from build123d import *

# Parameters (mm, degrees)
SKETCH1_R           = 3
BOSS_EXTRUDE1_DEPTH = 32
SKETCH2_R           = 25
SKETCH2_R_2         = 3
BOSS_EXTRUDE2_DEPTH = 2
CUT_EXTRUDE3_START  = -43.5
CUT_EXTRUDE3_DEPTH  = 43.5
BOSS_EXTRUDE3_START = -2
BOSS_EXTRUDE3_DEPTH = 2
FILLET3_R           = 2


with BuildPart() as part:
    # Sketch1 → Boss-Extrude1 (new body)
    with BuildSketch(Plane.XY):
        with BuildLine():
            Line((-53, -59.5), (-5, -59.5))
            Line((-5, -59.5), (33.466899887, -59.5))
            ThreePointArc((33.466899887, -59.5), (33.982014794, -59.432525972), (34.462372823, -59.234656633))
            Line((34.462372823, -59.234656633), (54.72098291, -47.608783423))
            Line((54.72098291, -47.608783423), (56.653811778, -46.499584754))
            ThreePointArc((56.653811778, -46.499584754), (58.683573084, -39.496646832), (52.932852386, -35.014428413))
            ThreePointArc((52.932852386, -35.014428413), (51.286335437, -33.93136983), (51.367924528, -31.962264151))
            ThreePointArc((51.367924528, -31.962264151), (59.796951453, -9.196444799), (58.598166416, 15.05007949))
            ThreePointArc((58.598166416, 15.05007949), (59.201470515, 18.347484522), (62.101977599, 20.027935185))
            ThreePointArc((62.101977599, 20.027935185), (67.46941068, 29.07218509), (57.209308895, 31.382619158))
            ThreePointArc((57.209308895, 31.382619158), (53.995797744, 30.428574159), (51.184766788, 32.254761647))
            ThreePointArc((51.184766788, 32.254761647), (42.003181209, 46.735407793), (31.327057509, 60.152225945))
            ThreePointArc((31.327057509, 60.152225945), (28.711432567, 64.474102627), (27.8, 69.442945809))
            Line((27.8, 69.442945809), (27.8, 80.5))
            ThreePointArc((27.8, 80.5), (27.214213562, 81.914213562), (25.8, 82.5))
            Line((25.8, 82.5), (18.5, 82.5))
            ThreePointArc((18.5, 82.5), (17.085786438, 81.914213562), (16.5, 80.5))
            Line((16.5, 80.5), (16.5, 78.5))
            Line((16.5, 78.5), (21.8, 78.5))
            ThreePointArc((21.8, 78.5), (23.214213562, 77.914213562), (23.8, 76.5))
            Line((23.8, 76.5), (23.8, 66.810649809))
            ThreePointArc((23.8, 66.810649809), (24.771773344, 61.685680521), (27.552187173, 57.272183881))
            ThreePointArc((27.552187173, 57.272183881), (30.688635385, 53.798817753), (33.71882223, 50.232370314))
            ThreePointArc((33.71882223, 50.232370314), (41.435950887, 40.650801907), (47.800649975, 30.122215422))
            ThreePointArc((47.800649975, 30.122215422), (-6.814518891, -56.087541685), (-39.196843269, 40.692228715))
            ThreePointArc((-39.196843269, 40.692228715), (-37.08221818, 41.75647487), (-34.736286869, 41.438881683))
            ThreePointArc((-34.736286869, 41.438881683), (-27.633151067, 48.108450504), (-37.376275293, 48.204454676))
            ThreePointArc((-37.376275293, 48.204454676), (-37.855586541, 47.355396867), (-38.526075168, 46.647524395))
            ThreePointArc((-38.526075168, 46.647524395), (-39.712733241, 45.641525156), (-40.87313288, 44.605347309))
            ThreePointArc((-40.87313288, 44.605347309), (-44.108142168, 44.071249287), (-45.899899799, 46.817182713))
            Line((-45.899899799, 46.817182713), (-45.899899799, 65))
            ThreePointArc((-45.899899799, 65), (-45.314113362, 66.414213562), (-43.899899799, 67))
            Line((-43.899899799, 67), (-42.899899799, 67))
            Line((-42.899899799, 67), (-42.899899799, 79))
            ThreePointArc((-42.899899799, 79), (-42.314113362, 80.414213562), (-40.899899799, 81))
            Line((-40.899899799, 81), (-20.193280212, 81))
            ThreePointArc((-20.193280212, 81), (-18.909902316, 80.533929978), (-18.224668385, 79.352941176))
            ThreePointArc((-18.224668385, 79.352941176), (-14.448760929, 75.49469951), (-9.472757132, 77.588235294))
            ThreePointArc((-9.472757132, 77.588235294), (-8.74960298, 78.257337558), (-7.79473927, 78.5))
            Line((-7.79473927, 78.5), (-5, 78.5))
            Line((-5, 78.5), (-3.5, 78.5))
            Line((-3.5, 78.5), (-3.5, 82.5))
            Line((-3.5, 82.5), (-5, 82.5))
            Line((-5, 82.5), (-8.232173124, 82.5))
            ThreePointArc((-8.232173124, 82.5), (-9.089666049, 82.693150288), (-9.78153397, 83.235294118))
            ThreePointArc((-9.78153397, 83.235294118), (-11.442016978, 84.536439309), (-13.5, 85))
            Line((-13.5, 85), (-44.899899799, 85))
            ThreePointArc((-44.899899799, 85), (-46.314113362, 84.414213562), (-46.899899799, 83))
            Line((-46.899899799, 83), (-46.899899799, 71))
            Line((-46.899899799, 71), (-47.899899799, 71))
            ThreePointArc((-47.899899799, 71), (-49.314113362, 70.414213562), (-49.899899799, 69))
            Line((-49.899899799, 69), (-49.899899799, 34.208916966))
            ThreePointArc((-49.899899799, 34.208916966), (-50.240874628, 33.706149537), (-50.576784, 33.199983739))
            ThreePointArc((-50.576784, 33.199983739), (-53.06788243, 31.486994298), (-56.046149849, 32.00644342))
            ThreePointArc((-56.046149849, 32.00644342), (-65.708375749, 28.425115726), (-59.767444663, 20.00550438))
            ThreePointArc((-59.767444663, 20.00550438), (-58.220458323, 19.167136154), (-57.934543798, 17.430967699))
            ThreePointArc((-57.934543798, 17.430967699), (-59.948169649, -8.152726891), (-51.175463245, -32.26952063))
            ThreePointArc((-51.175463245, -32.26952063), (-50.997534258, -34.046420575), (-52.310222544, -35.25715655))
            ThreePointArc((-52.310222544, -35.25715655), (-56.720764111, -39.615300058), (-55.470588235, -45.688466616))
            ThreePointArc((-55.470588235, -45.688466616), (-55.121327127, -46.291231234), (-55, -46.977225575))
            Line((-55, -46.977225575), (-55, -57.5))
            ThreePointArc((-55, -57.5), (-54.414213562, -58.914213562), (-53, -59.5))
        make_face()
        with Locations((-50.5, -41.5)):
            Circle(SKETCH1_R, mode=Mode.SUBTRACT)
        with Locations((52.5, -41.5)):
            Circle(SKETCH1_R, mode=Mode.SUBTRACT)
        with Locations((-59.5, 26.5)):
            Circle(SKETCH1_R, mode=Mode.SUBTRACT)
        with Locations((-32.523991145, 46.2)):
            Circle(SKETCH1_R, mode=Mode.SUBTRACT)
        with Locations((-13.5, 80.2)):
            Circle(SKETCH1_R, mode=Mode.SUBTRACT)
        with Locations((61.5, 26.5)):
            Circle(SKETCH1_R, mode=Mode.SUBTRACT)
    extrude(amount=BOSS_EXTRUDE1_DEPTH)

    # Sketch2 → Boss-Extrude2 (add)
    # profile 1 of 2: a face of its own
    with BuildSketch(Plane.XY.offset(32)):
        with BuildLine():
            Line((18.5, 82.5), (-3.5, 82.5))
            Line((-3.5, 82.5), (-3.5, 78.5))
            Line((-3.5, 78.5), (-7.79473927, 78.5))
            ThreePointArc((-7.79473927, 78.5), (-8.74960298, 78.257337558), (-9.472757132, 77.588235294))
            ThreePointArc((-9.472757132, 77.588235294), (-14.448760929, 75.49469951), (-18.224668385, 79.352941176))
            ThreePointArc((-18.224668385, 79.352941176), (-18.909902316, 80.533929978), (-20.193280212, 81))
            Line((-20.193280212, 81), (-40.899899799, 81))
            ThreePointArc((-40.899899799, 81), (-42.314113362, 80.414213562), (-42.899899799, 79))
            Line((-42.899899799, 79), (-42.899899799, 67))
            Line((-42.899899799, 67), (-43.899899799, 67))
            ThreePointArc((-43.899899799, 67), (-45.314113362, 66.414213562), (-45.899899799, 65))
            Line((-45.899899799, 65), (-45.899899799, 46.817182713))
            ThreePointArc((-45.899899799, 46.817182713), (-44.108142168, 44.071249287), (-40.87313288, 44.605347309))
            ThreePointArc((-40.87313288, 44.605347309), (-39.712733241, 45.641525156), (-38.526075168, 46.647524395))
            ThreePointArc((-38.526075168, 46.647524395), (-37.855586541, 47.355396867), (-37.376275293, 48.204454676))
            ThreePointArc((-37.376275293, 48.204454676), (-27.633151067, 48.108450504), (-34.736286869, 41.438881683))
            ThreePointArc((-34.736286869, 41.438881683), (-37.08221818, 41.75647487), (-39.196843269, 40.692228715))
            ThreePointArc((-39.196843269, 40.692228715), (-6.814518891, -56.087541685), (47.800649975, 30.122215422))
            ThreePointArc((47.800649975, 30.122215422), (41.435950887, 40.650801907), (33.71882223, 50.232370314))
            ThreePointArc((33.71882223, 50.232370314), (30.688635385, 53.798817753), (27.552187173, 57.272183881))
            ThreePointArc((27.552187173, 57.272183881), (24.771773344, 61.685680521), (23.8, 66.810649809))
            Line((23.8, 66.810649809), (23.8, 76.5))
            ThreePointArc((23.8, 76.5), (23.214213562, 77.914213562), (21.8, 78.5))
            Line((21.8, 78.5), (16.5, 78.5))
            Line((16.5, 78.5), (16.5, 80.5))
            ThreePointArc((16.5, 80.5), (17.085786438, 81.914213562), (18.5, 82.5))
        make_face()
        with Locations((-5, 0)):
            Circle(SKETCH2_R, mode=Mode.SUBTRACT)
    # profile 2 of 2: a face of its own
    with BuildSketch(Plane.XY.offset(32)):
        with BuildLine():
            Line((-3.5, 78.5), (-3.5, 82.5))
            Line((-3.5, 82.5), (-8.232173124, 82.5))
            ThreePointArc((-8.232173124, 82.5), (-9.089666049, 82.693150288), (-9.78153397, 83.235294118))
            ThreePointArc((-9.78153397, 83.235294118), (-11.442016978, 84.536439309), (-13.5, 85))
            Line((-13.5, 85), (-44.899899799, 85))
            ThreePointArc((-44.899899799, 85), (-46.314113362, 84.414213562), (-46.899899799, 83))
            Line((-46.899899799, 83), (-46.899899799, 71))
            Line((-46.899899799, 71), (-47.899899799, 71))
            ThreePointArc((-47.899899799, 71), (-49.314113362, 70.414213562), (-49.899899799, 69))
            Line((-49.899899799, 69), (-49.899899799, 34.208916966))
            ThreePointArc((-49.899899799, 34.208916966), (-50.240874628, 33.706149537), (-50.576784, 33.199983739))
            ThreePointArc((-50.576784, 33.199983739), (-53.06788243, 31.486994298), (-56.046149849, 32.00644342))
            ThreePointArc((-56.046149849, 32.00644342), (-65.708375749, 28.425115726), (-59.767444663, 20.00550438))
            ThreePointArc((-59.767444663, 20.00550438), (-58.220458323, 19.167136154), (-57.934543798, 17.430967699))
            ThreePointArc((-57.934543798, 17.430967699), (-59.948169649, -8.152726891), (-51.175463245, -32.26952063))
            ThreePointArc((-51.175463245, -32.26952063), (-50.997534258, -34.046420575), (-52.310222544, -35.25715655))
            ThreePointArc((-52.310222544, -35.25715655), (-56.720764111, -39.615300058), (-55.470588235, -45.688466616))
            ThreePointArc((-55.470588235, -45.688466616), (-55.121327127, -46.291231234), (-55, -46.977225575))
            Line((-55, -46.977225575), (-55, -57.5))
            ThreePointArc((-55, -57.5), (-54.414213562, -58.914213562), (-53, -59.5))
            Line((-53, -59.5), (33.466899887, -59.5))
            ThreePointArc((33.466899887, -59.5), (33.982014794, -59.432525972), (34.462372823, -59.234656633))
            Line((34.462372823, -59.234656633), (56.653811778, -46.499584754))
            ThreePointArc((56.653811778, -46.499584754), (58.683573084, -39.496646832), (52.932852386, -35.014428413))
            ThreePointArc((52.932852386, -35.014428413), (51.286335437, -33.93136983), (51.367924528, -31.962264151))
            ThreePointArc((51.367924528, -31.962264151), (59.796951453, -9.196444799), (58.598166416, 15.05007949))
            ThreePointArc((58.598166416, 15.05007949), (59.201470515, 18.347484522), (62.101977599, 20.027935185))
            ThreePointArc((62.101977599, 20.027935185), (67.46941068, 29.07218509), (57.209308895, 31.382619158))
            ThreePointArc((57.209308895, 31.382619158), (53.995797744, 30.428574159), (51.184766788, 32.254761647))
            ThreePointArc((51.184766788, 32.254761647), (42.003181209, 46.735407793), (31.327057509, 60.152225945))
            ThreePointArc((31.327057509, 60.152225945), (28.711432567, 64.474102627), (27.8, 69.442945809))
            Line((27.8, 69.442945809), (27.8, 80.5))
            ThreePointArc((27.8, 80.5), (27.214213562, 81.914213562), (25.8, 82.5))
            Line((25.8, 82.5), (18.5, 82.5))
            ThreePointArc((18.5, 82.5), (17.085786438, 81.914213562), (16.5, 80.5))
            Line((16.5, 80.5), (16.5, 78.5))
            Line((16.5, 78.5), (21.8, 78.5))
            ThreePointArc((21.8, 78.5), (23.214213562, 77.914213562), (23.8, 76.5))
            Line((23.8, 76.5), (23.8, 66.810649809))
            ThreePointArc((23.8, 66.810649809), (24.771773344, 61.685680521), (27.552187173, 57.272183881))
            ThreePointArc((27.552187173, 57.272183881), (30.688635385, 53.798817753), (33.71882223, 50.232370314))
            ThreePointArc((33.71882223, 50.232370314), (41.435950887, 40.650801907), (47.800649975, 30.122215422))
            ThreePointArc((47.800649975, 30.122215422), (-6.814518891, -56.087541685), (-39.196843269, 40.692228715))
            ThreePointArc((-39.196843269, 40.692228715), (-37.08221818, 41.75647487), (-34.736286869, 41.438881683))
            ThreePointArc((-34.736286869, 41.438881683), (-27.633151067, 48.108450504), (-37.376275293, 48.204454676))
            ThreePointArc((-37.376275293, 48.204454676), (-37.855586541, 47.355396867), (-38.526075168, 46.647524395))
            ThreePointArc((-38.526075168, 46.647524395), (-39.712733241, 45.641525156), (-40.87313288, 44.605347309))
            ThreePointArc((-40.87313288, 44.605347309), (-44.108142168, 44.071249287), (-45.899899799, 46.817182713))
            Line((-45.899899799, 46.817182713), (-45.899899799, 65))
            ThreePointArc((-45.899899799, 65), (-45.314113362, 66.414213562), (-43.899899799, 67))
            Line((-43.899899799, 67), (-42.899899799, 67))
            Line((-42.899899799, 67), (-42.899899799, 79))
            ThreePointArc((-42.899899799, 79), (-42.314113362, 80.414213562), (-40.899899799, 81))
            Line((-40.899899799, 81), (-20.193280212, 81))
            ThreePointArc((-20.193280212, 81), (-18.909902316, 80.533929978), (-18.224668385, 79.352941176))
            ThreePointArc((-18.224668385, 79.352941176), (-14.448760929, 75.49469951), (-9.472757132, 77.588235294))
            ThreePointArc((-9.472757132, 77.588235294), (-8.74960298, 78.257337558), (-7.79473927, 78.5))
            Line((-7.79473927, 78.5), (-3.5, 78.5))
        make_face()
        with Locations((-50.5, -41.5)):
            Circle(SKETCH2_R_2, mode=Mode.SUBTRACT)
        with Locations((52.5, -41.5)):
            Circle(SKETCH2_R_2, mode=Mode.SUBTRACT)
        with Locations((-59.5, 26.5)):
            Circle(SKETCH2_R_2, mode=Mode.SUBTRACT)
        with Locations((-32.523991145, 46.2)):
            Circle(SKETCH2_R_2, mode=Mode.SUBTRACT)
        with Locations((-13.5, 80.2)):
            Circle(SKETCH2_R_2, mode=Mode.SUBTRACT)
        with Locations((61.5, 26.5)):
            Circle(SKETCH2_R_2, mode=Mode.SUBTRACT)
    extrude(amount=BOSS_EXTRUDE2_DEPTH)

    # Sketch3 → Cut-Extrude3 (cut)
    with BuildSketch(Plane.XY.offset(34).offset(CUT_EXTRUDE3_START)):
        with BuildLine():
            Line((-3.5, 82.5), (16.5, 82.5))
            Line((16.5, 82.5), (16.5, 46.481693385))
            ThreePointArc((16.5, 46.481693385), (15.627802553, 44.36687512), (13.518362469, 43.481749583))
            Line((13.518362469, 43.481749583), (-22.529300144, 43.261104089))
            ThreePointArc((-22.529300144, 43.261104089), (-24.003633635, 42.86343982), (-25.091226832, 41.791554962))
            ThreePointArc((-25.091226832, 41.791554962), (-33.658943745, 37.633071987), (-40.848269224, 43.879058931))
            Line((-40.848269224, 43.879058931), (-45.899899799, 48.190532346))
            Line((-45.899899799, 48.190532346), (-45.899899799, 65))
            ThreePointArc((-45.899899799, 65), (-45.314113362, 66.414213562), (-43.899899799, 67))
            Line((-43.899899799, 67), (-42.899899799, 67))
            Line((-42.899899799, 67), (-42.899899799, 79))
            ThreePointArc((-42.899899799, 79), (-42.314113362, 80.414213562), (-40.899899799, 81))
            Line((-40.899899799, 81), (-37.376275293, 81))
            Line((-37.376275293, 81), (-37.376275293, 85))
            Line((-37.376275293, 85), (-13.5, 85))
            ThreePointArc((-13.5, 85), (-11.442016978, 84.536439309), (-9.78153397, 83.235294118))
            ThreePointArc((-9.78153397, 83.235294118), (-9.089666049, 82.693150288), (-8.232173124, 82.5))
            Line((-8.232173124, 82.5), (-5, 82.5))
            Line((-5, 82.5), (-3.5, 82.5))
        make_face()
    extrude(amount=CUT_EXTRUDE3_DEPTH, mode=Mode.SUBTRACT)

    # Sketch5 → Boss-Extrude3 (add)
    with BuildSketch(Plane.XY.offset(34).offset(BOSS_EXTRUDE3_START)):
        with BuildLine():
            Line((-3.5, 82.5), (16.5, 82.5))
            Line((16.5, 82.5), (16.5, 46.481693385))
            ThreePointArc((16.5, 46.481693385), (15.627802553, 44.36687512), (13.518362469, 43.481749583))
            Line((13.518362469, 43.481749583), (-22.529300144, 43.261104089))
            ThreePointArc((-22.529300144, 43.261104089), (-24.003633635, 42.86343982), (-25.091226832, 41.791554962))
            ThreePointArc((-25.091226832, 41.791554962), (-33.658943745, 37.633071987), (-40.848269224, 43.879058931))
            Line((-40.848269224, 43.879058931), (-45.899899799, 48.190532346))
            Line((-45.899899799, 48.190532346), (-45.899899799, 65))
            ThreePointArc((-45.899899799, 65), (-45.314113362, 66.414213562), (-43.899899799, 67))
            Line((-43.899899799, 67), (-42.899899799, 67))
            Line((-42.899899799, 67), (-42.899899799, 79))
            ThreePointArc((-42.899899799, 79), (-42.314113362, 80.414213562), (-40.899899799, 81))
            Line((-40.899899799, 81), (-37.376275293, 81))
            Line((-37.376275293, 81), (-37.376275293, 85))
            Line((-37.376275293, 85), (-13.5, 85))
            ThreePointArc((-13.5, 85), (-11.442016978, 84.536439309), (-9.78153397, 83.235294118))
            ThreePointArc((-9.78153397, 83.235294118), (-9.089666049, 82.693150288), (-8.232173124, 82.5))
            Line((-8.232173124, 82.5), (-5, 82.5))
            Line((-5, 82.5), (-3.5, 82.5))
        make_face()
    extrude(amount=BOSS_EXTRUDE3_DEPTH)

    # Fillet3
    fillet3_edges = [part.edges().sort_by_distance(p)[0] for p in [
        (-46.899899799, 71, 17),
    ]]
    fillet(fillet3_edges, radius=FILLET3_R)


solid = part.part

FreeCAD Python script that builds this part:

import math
import FreeCAD as App
import Part
import Sketcher
from FreeCAD import Vector


def edges_at(feature, points):
    """Names of the edges that pass closest to the given points."""
    edges = feature.Shape.Edges
    near = lambda p: min(range(len(edges)), key=lambda i: edges[i].distToShape(Part.Vertex(*p))[0])
    return sorted({f"Edge{near(p) + 1}" for p in points})

doc = App.newDocument("Part")
params = doc.addObject("Spreadsheet::Sheet", "Params")
for row, (alias, value) in enumerate([
    ("sketch1_diameter", "6 mm"),
    ("sketch1_radius", "2 mm"),
    ("sketch1_radius2", "4 mm"),
    ("sketch1_radius3", "14 mm"),
    ("sketch1_radius4", "6.5 mm"),
    ("pad1_length", "32 mm"),
    ("sketch2_diameter", "50 mm"),
    ("sketch2_diameter2", "6 mm"),
    ("sketch2_radius", "2 mm"),
    ("sketch2_radius2", "4 mm"),
    ("sketch2_radius3", "14 mm"),
    ("pad2_length", "2 mm"),
    ("sketch3_radius", "2 mm"),
    ("sketch3_radius2", "3 mm"),
    ("sketch3_radius3", "4.8 mm"),
    ("sketch3_width", "1 mm"),
    ("sketch3_height", "4 mm"),
    ("pocket1_length", "43.5 mm"),
    ("sketch4_radius", "2 mm"),
    ("sketch4_radius2", "3 mm"),
    ("sketch4_radius3", "4.8 mm"),
    ("sketch4_width", "1 mm"),
    ("sketch4_height", "4 mm"),
    ("pad3_length", "2 mm"),
    ("fillet_radius", "2 mm"),
], start=1):
    params.set(f"A{row}", alias)
    params.set(f"B{row}", "=" + value)
    params.setAlias(f"B{row}", alias)

body = doc.addObject("PartDesign::Body", "Body")

# Sketch on XY plane
sketch1 = doc.addObject("Sketcher::SketchObject", "Sketch")
body.addObject(sketch1)
sketch1.AttachmentSupport = (doc.XY_Plane, [""])
sketch1.MapMode = "FlatFace"
sketch1.addGeometry([
    Part.LineSegment(Vector(-53, -59.5, 0), Vector(33.5, -59.5, 0)),  # 0
    Part.ArcOfCircle(Part.Circle(Vector(33.5, -57.5, 0), Vector(0, 0, 1), 2), math.radians(-90), math.radians(-60)),  # 1
    Part.LineSegment(Vector(34.5, -59.2, 0), Vector(54.7, -47.6, 0)),  # 2
    Part.LineSegment(Vector(54.7, -47.6, 0), Vector(56.7, -46.5, 0)),  # 3
    Part.ArcOfCircle(Part.Circle(Vector(52.5, -41.5, 0), Vector(0, 0, 1), 6.5), math.radians(-50), math.radians(86)),  # 4
    Part.ArcOfCircle(Part.Circle(Vector(53.1, -33, 0), Vector(0, 0, 1), 2), math.radians(148), math.radians(266)),  # 5
    Part.ArcOfCircle(Part.Circle(Vector(0, 0, 0), Vector(0, 0, 1), 60.5), math.radians(-32), math.radians(14)),  # 6
    Part.ArcOfCircle(Part.Circle(Vector(62.5, 16, 0), Vector(0, 0, 1), 4), math.radians(95), math.radians(194)),  # 7
    Part.ArcOfCircle(Part.Circle(Vector(61.5, 26.5, 0), Vector(0, 0, 1), 6.5), math.radians(-85), math.radians(131)),  # 8
    Part.ArcOfCircle(Part.Circle(Vector(54.6, 34.4, 0), Vector(0, 0, 1), 4), math.radians(-148), math.radians(-49)),  # 9
    Part.ArcOfCircle(Part.Circle(Vector(-88.6, -46.2, 0), Vector(0, 0, 1), 160.3), math.radians(29.31), math.radians(41.58)),  # 10
    Part.ArcOfCircle(Part.Circle(Vector(41.8, 69.4, 0), Vector(0, 0, 1), 14), math.radians(180), math.radians(222)),  # 11
    Part.LineSegment(Vector(27.8, 69.4, 0), Vector(27.8, 80.5, 0)),  # 12
    Part.ArcOfCircle(Part.Circle(Vector(25.8, 80.5, 0), Vector(0, 0, 1), 2), math.radians(0), math.radians(90)),  # 13
    Part.LineSegment(Vector(25.8, 82.5, 0), Vector(18.5, 82.5, 0)),  # 14
    Part.ArcOfCircle(Part.Circle(Vector(18.5, 80.5, 0), Vector(0, 0, 1), 2), math.radians(90), math.radians(180)),  # 15
    Part.LineSegment(Vector(16.5, 80.5, 0), Vector(16.5, 78.5, 0)),  # 16
    Part.LineSegment(Vector(16.5, 78.5, 0), Vector(21.8, 78.5, 0)),  # 17
    Part.ArcOfCircle(Part.Circle(Vector(21.8, 76.5, 0), Vector(0, 0, 1), 2), math.radians(0), math.radians(90)),  # 18
    Part.LineSegment(Vector(23.8, 76.5, 0), Vector(23.8, 66.8, 0)),  # 19
    Part.ArcOfCircle(Part.Circle(Vector(37.8, 66.8, 0), Vector(0, 0, 1), 14), math.radians(180), math.radians(223)),  # 20
    Part.ArcOfCircle(Part.Circle(Vector(-85.9, -48.4, 0), Vector(0, 0, 1), 155), math.radians(39.49), math.radians(42.95)),  # 21
    Part.ArcOfCircle(Part.Circle(Vector(-33.7, -11.9, 0), Vector(0, 0, 1), 91.7), math.radians(27.31), math.radians(42.7)),  # 22
    Part.ArcOfCircle(Part.Circle(Vector(0, 0, 0), Vector(0, 0, 1), 56.5), math.radians(134), math.radians(392)),  # 23
    Part.ArcOfCircle(Part.Circle(Vector(-36.4, 37.8, 0), Vector(0, 0, 1), 4), math.radians(65), math.radians(134)),  # 24
    Part.ArcOfCircle(Part.Circle(Vector(-32.5, 46.2, 0), Vector(0, 0, 1), 5.2), math.radians(-115), math.radians(158)),  # 25
    Part.ArcOfCircle(Part.Circle(Vector(-41.1, 49.7, 0), Vector(0, 0, 1), 4), math.radians(-50), math.radians(-22)),  # 26
    Part.ArcOfCircle(Part.Circle(Vector(0, 0, 0), Vector(0, 0, 1), 60.5), math.radians(129.55), math.radians(132.5)),  # 27
    Part.ArcOfCircle(Part.Circle(Vector(-42.9, 46.8, 0), Vector(0, 0, 1), 3), math.radians(180), math.radians(312)),  # 28
    Part.LineSegment(Vector(-45.9, 46.8, 0), Vector(-45.9, 65, 0)),  # 29
    Part.ArcOfCircle(Part.Circle(Vector(-43.9, 65, 0), Vector(0, 0, 1), 2), math.radians(90), math.radians(180)),  # 30
    Part.LineSegment(Vector(-43.9, 67, 0), Vector(-42.9, 67, 0)),  # 31
    Part.LineSegment(Vector(-42.9, 67, 0), Vector(-42.9, 79, 0)),  # 32
    Part.ArcOfCircle(Part.Circle(Vector(-40.9, 79, 0), Vector(0, 0, 1), 2), math.radians(90), math.radians(180)),  # 33
    Part.LineSegment(Vector(-40.9, 81, 0), Vector(-20.2, 81, 0)),  # 34
    Part.ArcOfCircle(Part.Circle(Vector(-20.2, 79, 0), Vector(0, 0, 1), 2), math.radians(10), math.radians(90)),  # 35
    Part.ArcOfCircle(Part.Circle(Vector(-13.5, 80.2, 0), Vector(0, 0, 1), 4.8), math.radians(-170), math.radians(-33)),  # 36
    Part.ArcOfCircle(Part.Circle(Vector(-7.8, 76.5, 0), Vector(0, 0, 1), 2), math.radians(90), math.radians(147)),  # 37
    Part.LineSegment(Vector(-7.8, 78.5, 0), Vector(-3.5, 78.5, 0)),  # 38
    Part.LineSegment(Vector(-3.5, 78.5, 0), Vector(-3.5, 82.5, 0)),  # 39
    Part.LineSegment(Vector(-3.5, 82.5, 0), Vector(-8.2, 82.5, 0)),  # 40
    Part.ArcOfCircle(Part.Circle(Vector(-8.2, 84.5, 0), Vector(0, 0, 1), 2), math.radians(-141), math.radians(-90)),  # 41
    Part.ArcOfCircle(Part.Circle(Vector(-13.5, 80.2, 0), Vector(0, 0, 1), 4.8), math.radians(39), math.radians(90)),  # 42
    Part.LineSegment(Vector(-13.5, 85, 0), Vector(-44.9, 85, 0)),  # 43
    Part.ArcOfCircle(Part.Circle(Vector(-44.9, 83, 0), Vector(0, 0, 1), 2), math.radians(90), math.radians(180)),  # 44
    Part.LineSegment(Vector(-46.9, 83, 0), Vector(-46.9, 71, 0)),  # 45
    Part.LineSegment(Vector(-46.9, 71, 0), Vector(-47.9, 71, 0)),  # 46
    Part.ArcOfCircle(Part.Circle(Vector(-47.9, 69, 0), Vector(0, 0, 1), 2), math.radians(90), math.radians(180)),  # 47
    Part.LineSegment(Vector(-49.9, 69, 0), Vector(-49.9, 34.2, 0)),  # 48
    Part.ArcOfCircle(Part.Circle(Vector(0, 0, 0), Vector(0, 0, 1), 60.5), math.radians(145.57), math.radians(146.72)),  # 49
    Part.ArcOfCircle(Part.Circle(Vector(-53.9, 35.4, 0), Vector(0, 0, 1), 4), math.radians(-122), math.radians(-33)),  # 50
    Part.ArcOfCircle(Part.Circle(Vector(-59.5, 26.5, 0), Vector(0, 0, 1), 6.5), math.radians(58), math.radians(268)),  # 51
    Part.ArcOfCircle(Part.Circle(Vector(-59.8, 18, 0), Vector(0, 0, 1), 2), math.radians(-17), math.radians(88)),  # 52
    Part.ArcOfCircle(Part.Circle(Vector(0, 0, 0), Vector(0, 0, 1), 60.5), math.radians(163), math.radians(212)),  # 53
    Part.ArcOfCircle(Part.Circle(Vector(-52.9, -33.3, 0), Vector(0, 0, 1), 2), math.radians(-74), math.radians(32)),  # 54
    Part.ArcOfCircle(Part.Circle(Vector(-50.5, -41.5, 0), Vector(0, 0, 1), 6.5), math.radians(106), math.radians(220)),  # 55
    Part.ArcOfCircle(Part.Circle(Vector(-57, -47, 0), Vector(0, 0, 1), 2), math.radians(0), math.radians(40)),  # 56
    Part.LineSegment(Vector(-55, -47, 0), Vector(-55, -57.5, 0)),  # 57
    Part.ArcOfCircle(Part.Circle(Vector(-53, -57.5, 0), Vector(0, 0, 1), 2), math.radians(-180), math.radians(-90)),  # 58
    Part.Circle(Vector(-50.5, -41.5, 0), Vector(0, 0, 1), 3),  # 59
    Part.Circle(Vector(52.5, -41.5, 0), Vector(0, 0, 1), 3),  # 60
    Part.Circle(Vector(-59.5, 26.5, 0), Vector(0, 0, 1), 3),  # 61
    Part.Circle(Vector(-32.5, 46.2, 0), Vector(0, 0, 1), 3),  # 62
    Part.Circle(Vector(-13.5, 80.2, 0), Vector(0, 0, 1), 3),  # 63
    Part.Circle(Vector(61.5, 26.5, 0), Vector(0, 0, 1), 3),  # 64
], False)
sketch1.addConstraint([
    Sketcher.Constraint("Tangent", 0, 2, 1, 1),
    Sketcher.Constraint("Tangent", 1, 2, 2, 1),
    Sketcher.Constraint("Coincident", 2, 2, 3, 1),
    Sketcher.Constraint("Coincident", 3, 2, 4, 1),
    Sketcher.Constraint("Tangent", 4, 2, 5, 2),
    Sketcher.Constraint("Tangent", 5, 1, 6, 1),
    Sketcher.Constraint("Tangent", 6, 2, 7, 2),
    Sketcher.Constraint("Tangent", 7, 1, 8, 1),
    Sketcher.Constraint("Tangent", 8, 2, 9, 2),
    Sketcher.Constraint("Coincident", 9, 1, 10, 1),
    Sketcher.Constraint("Tangent", 10, 2, 11, 2),
    Sketcher.Constraint("Tangent", 11, 1, 12, 1),
    Sketcher.Constraint("Tangent", 12, 2, 13, 1),
    Sketcher.Constraint("Tangent", 13, 2, 14, 1),
    Sketcher.Constraint("Tangent", 14, 2, 15, 1),
    Sketcher.Constraint("Tangent", 15, 2, 16, 1),
    Sketcher.Constraint("Coincident", 16, 2, 17, 1),
    Sketcher.Constraint("Tangent", 17, 2, 18, 2),
    Sketcher.Constraint("Tangent", 18, 1, 19, 1),
    Sketcher.Constraint("Tangent", 19, 2, 20, 1),
    Sketcher.Constraint("Tangent", 20, 2, 21, 2),
    Sketcher.Constraint("Coincident", 21, 1, 22, 2),
    Sketcher.Constraint("Coincident", 22, 1, 23, 2),
    Sketcher.Constraint("Tangent", 23, 1, 24, 2),
    Sketcher.Constraint("Tangent", 24, 1, 25, 1),
    Sketcher.Constraint("Tangent", 25, 2, 26, 2),
    Sketcher.Constraint("Tangent", 26, 1, 27, 1),
    Sketcher.Constraint("Tangent", 27, 2, 28, 2),
    Sketcher.Constraint("Tangent", 28, 1, 29, 1),
    Sketcher.Constraint("Tangent", 29, 2, 30, 2),
    Sketcher.Constraint("Tangent", 30, 1, 31, 1),
    Sketcher.Constraint("Coincident", 31, 2, 32, 1),
    Sketcher.Constraint("Tangent", 32, 2, 33, 2),
    Sketcher.Constraint("Tangent", 33, 1, 34, 1),
    Sketcher.Constraint("Tangent", 34, 2, 35, 2),
    Sketcher.Constraint("Tangent", 35, 1, 36, 1),
    Sketcher.Constraint("Tangent", 36, 2, 37, 2),
    Sketcher.Constraint("Tangent", 37, 1, 38, 1),
    Sketcher.Constraint("Coincident", 38, 2, 39, 1),
    Sketcher.Constraint("Coincident", 39, 2, 40, 1),
    Sketcher.Constraint("Tangent", 40, 2, 41, 2),
    Sketcher.Constraint("Tangent", 41, 1, 42, 1),
    Sketcher.Constraint("Tangent", 42, 2, 43, 1),
    Sketcher.Constraint("Tangent", 43, 2, 44, 1),
    Sketcher.Constraint("Tangent", 44, 2, 45, 1),
    Sketcher.Constraint("Coincident", 45, 2, 46, 1),
    Sketcher.Constraint("Tangent", 46, 2, 47, 1),
    Sketcher.Constraint("Tangent", 47, 2, 48, 1),
    Sketcher.Constraint("Coincident", 48, 2, 49, 1),
    Sketcher.Constraint("Tangent", 49, 2, 50, 2),
    Sketcher.Constraint("Tangent", 50, 1, 51, 1),
    Sketcher.Constraint("Tangent", 51, 2, 52, 2),
    Sketcher.Constraint("Tangent", 52, 1, 53, 1),
    Sketcher.Constraint("Tangent", 53, 2, 54, 2),
    Sketcher.Constraint("Tangent", 54, 1, 55, 1),
    Sketcher.Constraint("Tangent", 55, 2, 56, 2),
    Sketcher.Constraint("Tangent", 56, 1, 57, 1),
    Sketcher.Constraint("Tangent", 57, 2, 58, 1),
    Sketcher.Constraint("Tangent", 58, 2, 0, 1),
    Sketcher.Constraint("Horizontal", 0),
    Sketcher.Constraint("Vertical", 12),
    Sketcher.Constraint("Horizontal", 14),
    Sketcher.Constraint("Vertical", 16),
    Sketcher.Constraint("Horizontal", 17),
    Sketcher.Constraint("Vertical", 19),
    Sketcher.Constraint("Vertical", 29),
    Sketcher.Constraint("Horizontal", 31),
    Sketcher.Constraint("Vertical", 32),
    Sketcher.Constraint("Horizontal", 34),
    Sketcher.Constraint("Horizontal", 38),
    Sketcher.Constraint("Vertical", 39),
    Sketcher.Constraint("Horizontal", 40),
    Sketcher.Constraint("Horizontal", 43),
    Sketcher.Constraint("Vertical", 45),
    Sketcher.Constraint("Horizontal", 46),
    Sketcher.Constraint("Vertical", 48),
    Sketcher.Constraint("Vertical", 57),
    Sketcher.Constraint("Coincident", 6, 3, -1, 1),
    Sketcher.Constraint("Coincident", 23, 3, -1, 1),
    Sketcher.Constraint("Coincident", 27, 3, -1, 1),
    Sketcher.Constraint("Coincident", 49, 3, -1, 1),
    Sketcher.Constraint("Coincident", 53, 3, -1, 1),
    Sketcher.Constraint("Coincident", 42, 3, 36, 3),
    Sketcher.Constraint("Coincident", 59, 3, 55, 3),
    Sketcher.Constraint("Coincident", 60, 3, 4, 3),
    Sketcher.Constraint("Coincident", 61, 3, 51, 3),
    Sketcher.Constraint("Coincident", 62, 3, 25, 3),
    Sketcher.Constraint("Coincident", 63, 3, 36, 3),
    Sketcher.Constraint("Coincident", 64, 3, 8, 3),
    Sketcher.Constraint("Equal", 1, 5),
    Sketcher.Constraint("Equal", 4, 8),
    Sketcher.Constraint("Equal", 7, 9),
    Sketcher.Constraint("Equal", 5, 13),
    Sketcher.Constraint("Equal", 13, 15),
    Sketcher.Constraint("Equal", 15, 18),
    Sketcher.Constraint("Equal", 11, 20),
    Sketcher.Constraint("Equal", 9, 24),
    Sketcher.Constraint("Equal", 24, 26),
    Sketcher.Constraint("Equal", 6, 27),
    Sketcher.Constraint("Equal", 18, 30),
    Sketcher.Constraint("Equal", 30, 33),
    Sketcher.Constraint("Equal", 33, 35),
    Sketcher.Constraint("Equal", 35, 37),
    Sketcher.Constraint("Equal", 37, 41),
    Sketcher.Constraint("Equal", 36, 42),
    Sketcher.Constraint("Equal", 41, 44),
    Sketcher.Constraint("Equal", 44, 47),
    Sketcher.Constraint("Equal", 27, 49),
    Sketcher.Constraint("Equal", 26, 50),
    Sketcher.Constraint("Equal", 8, 51),
    Sketcher.Constraint("Equal", 47, 52),
    Sketcher.Constraint("Equal", 49, 53),
    Sketcher.Constraint("Equal", 52, 54),
    Sketcher.Constraint("Equal", 51, 55),
    Sketcher.Constraint("Equal", 54, 56),
    Sketcher.Constraint("Equal", 56, 58),
    Sketcher.Constraint("Equal", 28, 59),
    Sketcher.Constraint("Equal", 59, 60),
    Sketcher.Constraint("Equal", 60, 61),
    Sketcher.Constraint("Equal", 61, 62),
    Sketcher.Constraint("Equal", 62, 63),
    Sketcher.Constraint("Equal", 63, 64),
    Sketcher.Constraint("Parallel", 2, 3),
    Sketcher.Constraint("Horizontal", 18, 3, 37, 3),
    Sketcher.Constraint("Horizontal", 8, 3, 51, 3),
    Sketcher.Constraint("Horizontal", 4, 3, 55, 3),
    Sketcher.Constraint("Horizontal", 14, 2, 39, 2),
    Sketcher.Constraint("Vertical", 28, 3, 31, 2),
    Sketcher.Constraint("Equal", 31, 46),
    Sketcher.Constraint("Equal", 32, 45),
    Sketcher.Constraint("Diameter", 59, 6.0),
    Sketcher.Constraint("Radius", 1, 2.0),
    Sketcher.Constraint("Radius", 7, 4.0),
    Sketcher.Constraint("Radius", 11, 14.0),
    Sketcher.Constraint("Radius", 4, 6.5),
    Sketcher.Constraint("Radius", 6, 60.5),
    Sketcher.Constraint("Radius", 23, 56.5),
    Sketcher.Constraint("Radius", 36, 4.8),
    Sketcher.Constraint("DistanceY", 16, 2, 16, 1, 2.0),
    Sketcher.Constraint("DistanceY", 32, 1, 32, 2, 12.0),
    Sketcher.Constraint("Radius", 25, 5.25),
    Sketcher.Constraint("DistanceX", 14, 2, 14, 1, 7.3),
    Sketcher.Constraint("DistanceX", 17, 1, 17, 2, 5.3),
    Sketcher.Constraint("DistanceY", -1, 1, 30, 3, 65.0),
    Sketcher.Constraint("DistanceY", -1, 1, 44, 3, 83.0),
    Sketcher.Constraint("DistanceX", 56, 3, -1, 1, 57.0),
    Sketcher.Constraint("DistanceY", 1, 3, -1, 1, 57.5),
    Sketcher.Constraint("DistanceX", -1, 1, 4, 3, 52.5),
    Sketcher.Constraint("DistanceY", 4, 3, -1, 1, 41.5),
    Sketcher.Constraint("DistanceX", -1, 1, 8, 3, 61.5),
    Sketcher.Constraint("DistanceY", -1, 1, 8, 3, 26.5),
    Sketcher.Constraint("DistanceX", -1, 1, 11, 3, 41.8),
    Sketcher.Constraint("DistanceY", -1, 1, 13, 3, 80.5),
    Sketcher.Constraint("DistanceY", -1, 1, 25, 3, 46.2),
    Sketcher.Constraint("DistanceX", 36, 3, -1, 1, 13.5),
    Sketcher.Constraint("DistanceX", 51, 3, -1, 1, 59.5),
    Sketcher.Constraint("DistanceX", 55, 3, -1, 1, 50.5),
    Sketcher.Constraint("DistanceX", 38, 2, -1, 1, 3.5),
    Sketcher.Constraint("Radius", 21, 155.039711),
    Sketcher.Constraint("DistanceX", 0, 1, 0, 2, 86.4669),
    Sketcher.Constraint("DistanceX", 43, 2, 43, 1, 31.3999),
    Sketcher.Constraint("Radius", 10, 160.256924),
    Sketcher.Constraint("Radius", 22, 91.676275),
    Sketcher.Constraint("DistanceX", 34, 1, 34, 2, 20.70662),
    Sketcher.Constraint("DistanceY", 19, 2, 19, 1, 9.68935),
    Sketcher.Constraint("DistanceX", 22, 3, -1, 1, 33.6599),
    Sketcher.Constraint("DistanceY", 12, 1, 12, 2, 11.057054),
    Sketcher.Constraint("DistanceX", 10, 3, -1, 1, 88.555911),
    Sketcher.Constraint("DistanceX", 21, 3, -1, 1, 85.934809),
    Sketcher.Constraint("DistanceX", 25, 3, -1, 1, 32.523991),
    Sketcher.Constraint("DistanceX", -1, 1, 3, 2, 56.653812),
    Sketcher.Constraint("DistanceX", -1, 1, 8, 2, 57.209309),
    Sketcher.Constraint("DistanceY", -1, 1, 21, 1, 50.23237),
    Sketcher.Constraint("Distance", 2, 23.357487),
])
sketch1.setExpression("Constraints[130]", "Params.sketch1_diameter")
sketch1.setExpression("Constraints[131]", "Params.sketch1_radius")
sketch1.setExpression("Constraints[132]", "Params.sketch1_radius2")
sketch1.setExpression("Constraints[133]", "Params.sketch1_radius3")
sketch1.setExpression("Constraints[134]", "Params.sketch1_radius4")
pad1 = doc.addObject("PartDesign::Pad", "Pad")
body.addObject(pad1)
pad1.Profile = sketch1
pad1.setExpression("Length", "Params.pad1_length")

# Sketch on XY plane
sketch2 = doc.addObject("Sketcher::SketchObject", "Sketch001")
body.addObject(sketch2)
sketch2.AttachmentSupport = (doc.XY_Plane, [""])
sketch2.MapMode = "FlatFace"
sketch2.AttachmentOffset = App.Placement(Vector(0, 0, 32), App.Rotation())
sketch2.addGeometry([
    Part.ArcOfCircle(Part.Circle(Vector(-8.2, 84.5, 0), Vector(0, 0, 1), 2), math.radians(-141), math.radians(-90)),  # 0
    Part.ArcOfCircle(Part.Circle(Vector(-13.5, 80.2, 0), Vector(0, 0, 1), 4.8), math.radians(39), math.radians(90)),  # 1
    Part.LineSegment(Vector(-13.5, 85, 0), Vector(-44.9, 85, 0)),  # 2
    Part.ArcOfCircle(Part.Circle(Vector(-44.9, 83, 0), Vector(0, 0, 1), 2), math.radians(90), math.radians(180)),  # 3
    Part.LineSegment(Vector(-46.9, 83, 0), Vector(-46.9, 71, 0)),  # 4
    Part.LineSegment(Vector(-46.9, 71, 0), Vector(-47.9, 71, 0)),  # 5
    Part.ArcOfCircle(Part.Circle(Vector(-47.9, 69, 0), Vector(0, 0, 1), 2), math.radians(90), math.radians(180)),  # 6
    Part.LineSegment(Vector(-49.9, 69, 0), Vector(-49.9, 34.2, 0)),  # 7
    Part.ArcOfCircle(Part.Circle(Vector(0, 0, 0), Vector(0, 0, 1), 60.5), math.radians(145.57), math.radians(146.72)),  # 8
    Part.ArcOfCircle(Part.Circle(Vector(-53.9, 35.4, 0), Vector(0, 0, 1), 4), math.radians(-122), math.radians(-33)),  # 9
    Part.ArcOfCircle(Part.Circle(Vector(-59.5, 26.5, 0), Vector(0, 0, 1), 6.5), math.radians(58), math.radians(268)),  # 10
    Part.ArcOfCircle(Part.Circle(Vector(-59.8, 18, 0), Vector(0, 0, 1), 2), math.radians(-17), math.radians(88)),  # 11
    Part.ArcOfCircle(Part.Circle(Vector(0, 0, 0), Vector(0, 0, 1), 60.5), math.radians(163), math.radians(212)),  # 12
    Part.ArcOfCircle(Part.Circle(Vector(-52.9, -33.3, 0), Vector(0, 0, 1), 2), math.radians(-74), math.radians(32)),  # 13
    Part.ArcOfCircle(Part.Circle(Vector(-50.5, -41.5, 0), Vector(0, 0, 1), 6.5), math.radians(106), math.radians(220)),  # 14
    Part.ArcOfCircle(Part.Circle(Vector(-57, -47, 0), Vector(0, 0, 1), 2), math.radians(0), math.radians(40)),  # 15
    Part.LineSegment(Vector(-55, -47, 0), Vector(-55, -57.5, 0)),  # 16
    Part.ArcOfCircle(Part.Circle(Vector(-53, -57.5, 0), Vector(0, 0, 1), 2), math.radians(-180), math.radians(-90)),  # 17
    Part.LineSegment(Vector(-53, -59.5, 0), Vector(33.5, -59.5, 0)),  # 18
    Part.ArcOfCircle(Part.Circle(Vector(33.5, -57.5, 0), Vector(0, 0, 1), 2), math.radians(-90), math.radians(-60)),  # 19
    Part.LineSegment(Vector(34.5, -59.2, 0), Vector(56.7, -46.5, 0)),  # 20
    Part.ArcOfCircle(Part.Circle(Vector(52.5, -41.5, 0), Vector(0, 0, 1), 6.5), math.radians(-50), math.radians(86)),  # 21
    Part.ArcOfCircle(Part.Circle(Vector(53.1, -33, 0), Vector(0, 0, 1), 2), math.radians(148), math.radians(266)),  # 22
    Part.ArcOfCircle(Part.Circle(Vector(0, 0, 0), Vector(0, 0, 1), 60.5), math.radians(-32), math.radians(14)),  # 23
    Part.ArcOfCircle(Part.Circle(Vector(62.5, 16, 0), Vector(0, 0, 1), 4), math.radians(95), math.radians(194)),  # 24
    Part.ArcOfCircle(Part.Circle(Vector(61.5, 26.5, 0), Vector(0, 0, 1), 6.5), math.radians(-85), math.radians(131)),  # 25
    Part.ArcOfCircle(Part.Circle(Vector(54.6, 34.4, 0), Vector(0, 0, 1), 4), math.radians(-148), math.radians(-49)),  # 26
    Part.ArcOfCircle(Part.Circle(Vector(-88.6, -46.2, 0), Vector(0, 0, 1), 160.3), math.radians(29.31), math.radians(41.58)),  # 27
    Part.ArcOfCircle(Part.Circle(Vector(41.8, 69.4, 0), Vector(0, 0, 1), 14), math.radians(180), math.radians(222)),  # 28
    Part.LineSegment(Vector(27.8, 69.4, 0), Vector(27.8, 80.5, 0)),  # 29
    Part.ArcOfCircle(Part.Circle(Vector(25.8, 80.5, 0), Vector(0, 0, 1), 2), math.radians(0), math.radians(90)),  # 30
    Part.LineSegment(Vector(25.8, 82.5, 0), Vector(-8.2, 82.5, 0)),  # 31
    Part.Circle(Vector(-5, 0, 0), Vector(0, 0, 1), 25),  # 32
    Part.Circle(Vector(-13.5, 80.2, 0), Vector(0, 0, 1), 3),  # 33
    Part.Circle(Vector(-59.5, 26.5, 0), Vector(0, 0, 1), 3),  # 34
    Part.Circle(Vector(-50.5, -41.5, 0), Vector(0, 0, 1), 3),  # 35
    Part.Circle(Vector(52.5, -41.5, 0), Vector(0, 0, 1), 3),  # 36
    Part.Circle(Vector(-32.5, 46.2, 0), Vector(0, 0, 1), 3),  # 37
    Part.Circle(Vector(61.5, 26.5, 0), Vector(0, 0, 1), 3),  # 38
], False)
sketch2.addConstraint([
    Sketcher.Constraint("Tangent", 0, 1, 1, 1),
    Sketcher.Constraint("Tangent", 1, 2, 2, 1),
    Sketcher.Constraint("Tangent", 2, 2, 3, 1),
    Sketcher.Constraint("Tangent", 3, 2, 4, 1),
    Sketcher.Constraint("Coincident", 4, 2, 5, 1),
    Sketcher.Constraint("Tangent", 5, 2, 6, 1),
    Sketcher.Constraint("Tangent", 6, 2, 7, 1),
    Sketcher.Constraint("Coincident", 7, 2, 8, 1),
    Sketcher.Constraint("Tangent", 8, 2, 9, 2),
    Sketcher.Constraint("Tangent", 9, 1, 10, 1),
    Sketcher.Constraint("Tangent", 10, 2, 11, 2),
    Sketcher.Constraint("Tangent", 11, 1, 12, 1),
    Sketcher.Constraint("Tangent", 12, 2, 13, 2),
    Sketcher.Constraint("Tangent", 13, 1, 14, 1),
    Sketcher.Constraint("Tangent", 14, 2, 15, 2),
    Sketcher.Constraint("Tangent", 15, 1, 16, 1),
    Sketcher.Constraint("Tangent", 16, 2, 17, 1),
    Sketcher.Constraint("Tangent", 17, 2, 18, 1),
    Sketcher.Constraint("Tangent", 18, 2, 19, 1),
    Sketcher.Constraint("Tangent", 19, 2, 20, 1),
    Sketcher.Constraint("Coincident", 20, 2, 21, 1),
    Sketcher.Constraint("Tangent", 21, 2, 22, 2),
    Sketcher.Constraint("Tangent", 22, 1, 23, 1),
    Sketcher.Constraint("Tangent", 23, 2, 24, 2),
    Sketcher.Constraint("Tangent", 24, 1, 25, 1),
    Sketcher.Constraint("Tangent", 25, 2, 26, 2),
    Sketcher.Constraint("Coincident", 26, 1, 27, 1),
    Sketcher.Constraint("Tangent", 27, 2, 28, 2),
    Sketcher.Constraint("Tangent", 28, 1, 29, 1),
    Sketcher.Constraint("Tangent", 29, 2, 30, 1),
    Sketcher.Constraint("Tangent", 30, 2, 31, 1),
    Sketcher.Constraint("Tangent", 31, 2, 0, 2),
    Sketcher.Constraint("Horizontal", 2),
    Sketcher.Constraint("Vertical", 4),
    Sketcher.Constraint("Horizontal", 5),
    Sketcher.Constraint("Vertical", 7),
    Sketcher.Constraint("Vertical", 16),
    Sketcher.Constraint("Horizontal", 18),
    Sketcher.Constraint("Vertical", 29),
    Sketcher.Constraint("Horizontal", 31),
    Sketcher.Constraint("Coincident", 8, 3, -1, 1),
    Sketcher.Constraint("Coincident", 12, 3, -1, 1),
    Sketcher.Constraint("Coincident", 23, 3, -1, 1),
    Sketcher.Constraint("Coincident", 33, 3, 1, 3),
    Sketcher.Constraint("Coincident", 34, 3, 10, 3),
    Sketcher.Constraint("Coincident", 35, 3, 14, 3),
    Sketcher.Constraint("Coincident", 36, 3, 21, 3),
    Sketcher.Constraint("Coincident", 38, 3, 25, 3),
    Sketcher.Constraint("Equal", 0, 3),
    Sketcher.Constraint("Equal", 3, 6),
    Sketcher.Constraint("Equal", 6, 11),
    Sketcher.Constraint("Equal", 8, 12),
    Sketcher.Constraint("Equal", 11, 13),
    Sketcher.Constraint("Equal", 10, 14),
    Sketcher.Constraint("Equal", 13, 15),
    Sketcher.Constraint("Equal", 15, 17),
    Sketcher.Constraint("Equal", 17, 19),
    Sketcher.Constraint("Equal", 14, 21),
    Sketcher.Constraint("Equal", 19, 22),
    Sketcher.Constraint("Equal", 12, 23),
    Sketcher.Constraint("Equal", 9, 24),
    Sketcher.Constraint("Equal", 21, 25),
    Sketcher.Constraint("Equal", 24, 26),
    Sketcher.Constraint("Equal", 22, 30),
    Sketcher.Constraint("Equal", 33, 34),
    Sketcher.Constraint("Equal", 34, 35),
    Sketcher.Constraint("Equal", 35, 36),
    Sketcher.Constraint("Equal", 36, 37),
    Sketcher.Constraint("Equal", 37, 38),
    Sketcher.Constraint("PointOnObject", 32, 3, -1),
    Sketcher.Constraint("Horizontal", 14, 3, 21, 3),
    Sketcher.Constraint("Horizontal", 10, 3, 25, 3),
    Sketcher.Constraint("Diameter", 32, 50.0),
    Sketcher.Constraint("Diameter", 33, 6.0),
    Sketcher.Constraint("Radius", 0, 2.0),
    Sketcher.Constraint("Radius", 9, 4.0),
    Sketcher.Constraint("Radius", 28, 14.0),
    Sketcher.Constraint("Radius", 1, 4.8),
    Sketcher.Constraint("Radius", 8, 60.5),
    Sketcher.Constraint("Radius", 10, 6.5),
    Sketcher.Constraint("DistanceX", 5, 2, 5, 1, 1.0),
    Sketcher.Constraint("DistanceY", 4, 2, 4, 1, 12.0),
    Sketcher.Constraint("DistanceY", -1, 1, 3, 3, 83.0),
    Sketcher.Constraint("DistanceX", 15, 3, -1, 1, 57.0),
    Sketcher.Constraint("DistanceX", 32, 3, -1, 1, 5.0),
    Sketcher.Constraint("DistanceY", -1, 1, 0, 3, 84.5),
    Sketcher.Constraint("DistanceX", 1, 3, -1, 1, 13.5),
    Sketcher.Constraint("DistanceX", 10, 3, -1, 1, 59.5),
    Sketcher.Constraint("DistanceY", -1, 1, 10, 3, 26.5),
    Sketcher.Constraint("DistanceX", 14, 3, -1, 1, 50.5),
    Sketcher.Constraint("DistanceY", 14, 3, -1, 1, 41.5),
    Sketcher.Constraint("DistanceY", 17, 3, -1, 1, 57.5),
    Sketcher.Constraint("DistanceX", -1, 1, 21, 3, 52.5),
    Sketcher.Constraint("DistanceX", -1, 1, 25, 3, 61.5),
    Sketcher.Constraint("DistanceX", -1, 1, 28, 3, 41.8),
    Sketcher.Constraint("DistanceY", -1, 1, 37, 3, 46.2),
    Sketcher.Constraint("DistanceX", 2, 2, 2, 1, 31.3999),
    Sketcher.Constraint("DistanceX", 18, 1, 18, 2, 86.4669),
    Sketcher.Constraint("Radius", 27, 160.256924),
    Sketcher.Constraint("DistanceY", 29, 1, 29, 2, 11.057054),
    Sketcher.Constraint("DistanceX", 27, 3, -1, 1, 88.555911),
    Sketcher.Constraint("DistanceX", 37, 3, -1, 1, 32.523991),
    Sketcher.Constraint("DistanceX", -1, 1, 20, 2, 56.653812),
    Sketcher.Constraint("DistanceX", -1, 1, 25, 2, 57.209309),
])
sketch2.setExpression("Constraints[72]", "Params.sketch2_diameter")
sketch2.setExpression("Constraints[73]", "Params.sketch2_diameter2")
sketch2.setExpression("Constraints[74]", "Params.sketch2_radius")
sketch2.setExpression("Constraints[75]", "Params.sketch2_radius2")
sketch2.setExpression("Constraints[76]", "Params.sketch2_radius3")
pad2 = doc.addObject("PartDesign::Pad", "Pad001")
body.addObject(pad2)
pad2.Profile = sketch2
pad2.setExpression("Length", "Params.pad2_length")

# Sketch on XY plane
sketch3 = doc.addObject("Sketcher::SketchObject", "Sketch002")
body.addObject(sketch3)
sketch3.AttachmentSupport = (doc.XY_Plane, [""])
sketch3.MapMode = "FlatFace"
sketch3.AttachmentOffset = App.Placement(Vector(0, 0, -9.5), App.Rotation())
sketch3.addGeometry([
    Part.LineSegment(Vector(16.5, 46.5, 0), Vector(16.5, 82.5, 0)),  # 0
    Part.LineSegment(Vector(16.5, 82.5, 0), Vector(-8.2, 82.5, 0)),  # 1
    Part.ArcOfCircle(Part.Circle(Vector(-8.2, 84.5, 0), Vector(0, 0, 1), 2), math.radians(-141), math.radians(-90)),  # 2
    Part.ArcOfCircle(Part.Circle(Vector(-13.5, 80.2, 0), Vector(0, 0, 1), 4.8), math.radians(39), math.radians(90)),  # 3
    Part.LineSegment(Vector(-13.5, 85, 0), Vector(-37.4, 85, 0)),  # 4
    Part.LineSegment(Vector(-37.4, 85, 0), Vector(-37.4, 81, 0)),  # 5
    Part.LineSegment(Vector(-37.4, 81, 0), Vector(-40.9, 81, 0)),  # 6
    Part.ArcOfCircle(Part.Circle(Vector(-40.9, 79, 0), Vector(0, 0, 1), 2), math.radians(90), math.radians(180)),  # 7
    Part.LineSegment(Vector(-42.9, 79, 0), Vector(-42.9, 67, 0)),  # 8
    Part.LineSegment(Vector(-42.9, 67, 0), Vector(-43.9, 67, 0)),  # 9
    Part.ArcOfCircle(Part.Circle(Vector(-43.9, 65, 0), Vector(0, 0, 1), 2), math.radians(90), math.radians(180)),  # 10
    Part.LineSegment(Vector(-45.9, 65, 0), Vector(-45.9, 48.2, 0)),  # 11
    Part.LineSegment(Vector(-45.9, 48.2, 0), Vector(-40.8, 43.9, 0)),  # 12
    Part.ArcOfCircle(Part.Circle(Vector(-32.5, 46.2, 0), Vector(0, 0, 1), 8.6), math.radians(-164), math.radians(-31)),  # 13
    Part.ArcOfCircle(Part.Circle(Vector(-22.5, 40.3, 0), Vector(0, 0, 1), 3), math.radians(90), math.radians(149)),  # 14
    Part.LineSegment(Vector(-22.5, 43.3, 0), Vector(13.5, 43.5, 0)),  # 15
    Part.ArcOfCircle(Part.Circle(Vector(13.5, 46.5, 0), Vector(0, 0, 1), 3), math.radians(-90), math.radians(0)),  # 16
], False)
sketch3.addConstraint([
    Sketcher.Constraint("Coincident", 0, 2, 1, 1),
    Sketcher.Constraint("Tangent", 1, 2, 2, 2),
    Sketcher.Constraint("Tangent", 2, 1, 3, 1),
    Sketcher.Constraint("Tangent", 3, 2, 4, 1),
    Sketcher.Constraint("Coincident", 4, 2, 5, 1),
    Sketcher.Constraint("Coincident", 5, 2, 6, 1),
    Sketcher.Constraint("Tangent", 6, 2, 7, 1),
    Sketcher.Constraint("Tangent", 7, 2, 8, 1),
    Sketcher.Constraint("Coincident", 8, 2, 9, 1),
    Sketcher.Constraint("Tangent", 9, 2, 10, 1),
    Sketcher.Constraint("Tangent", 10, 2, 11, 1),
    Sketcher.Constraint("Coincident", 11, 2, 12, 1),
    Sketcher.Constraint("Coincident", 12, 2, 13, 1),
    Sketcher.Constraint("Tangent", 13, 2, 14, 2),
    Sketcher.Constraint("Tangent", 14, 1, 15, 1),
    Sketcher.Constraint("Tangent", 15, 2, 16, 1),
    Sketcher.Constraint("Tangent", 16, 2, 0, 1),
    Sketcher.Constraint("Vertical", 0),
    Sketcher.Constraint("Horizontal", 1),
    Sketcher.Constraint("Horizontal", 4),
    Sketcher.Constraint("Vertical", 5),
    Sketcher.Constraint("Horizontal", 6),
    Sketcher.Constraint("Vertical", 8),
    Sketcher.Constraint("Horizontal", 9),
    Sketcher.Constraint("Vertical", 11),
    Sketcher.Constraint("Equal", 2, 7),
    Sketcher.Constraint("Equal", 7, 10),
    Sketcher.Constraint("Equal", 14, 16),
    Sketcher.Constraint("Radius", 2, 2.0),
    Sketcher.Constraint("Radius", 14, 3.0),
    Sketcher.Constraint("Radius", 3, 4.8),
    Sketcher.Constraint("DistanceX", 9, 2, 9, 1, 1.0),
    Sketcher.Constraint("DistanceY", 5, 2, 5, 1, 4.0),
    Sketcher.Constraint("DistanceY", 8, 2, 8, 1, 12.0),
    Sketcher.Constraint("DistanceY", -1, 1, 7, 3, 79.0),
    Sketcher.Constraint("DistanceY", 13, 3, 3, 3, 34.0),
    Sketcher.Constraint("DistanceX", 3, 3, 16, 3, 27.0),
    Sketcher.Constraint("DistanceY", -1, 1, 2, 3, 84.5),
    Sketcher.Constraint("DistanceX", 3, 3, -1, 1, 13.5),
    Sketcher.Constraint("Radius", 13, 8.641781),
    Sketcher.Constraint("DistanceX", 7, 3, -1, 1, 40.8999),
    Sketcher.Constraint("DistanceX", 14, 1, -1, 1, 22.5293),
    Sketcher.Constraint("DistanceY", 14, 3, 12, 2, 3.617899),
    Sketcher.Constraint("Distance", 12, 6.641368),
    Sketcher.Constraint("DistanceX", 4, 2, 4, 1, 23.876275),
    Sketcher.Constraint("DistanceY", 0, 1, 0, 2, 36.018307),
    Sketcher.Constraint("DistanceY", 11, 2, 11, 1, 16.809468),
])
sketch3.setExpression("Constraints[28]", "Params.sketch3_radius")
sketch3.setExpression("Constraints[29]", "Params.sketch3_radius2")
sketch3.setExpression("Constraints[30]", "Params.sketch3_radius3")
sketch3.setExpression("Constraints[31]", "Params.sketch3_width")
sketch3.setExpression("Constraints[32]", "Params.sketch3_height")
pocket1 = doc.addObject("PartDesign::Pocket", "Pocket")
body.addObject(pocket1)
pocket1.Profile = sketch3
pocket1.setExpression("Length", "Params.pocket1_length")
pocket1.Reversed = True

# Sketch on XY plane
sketch4 = doc.addObject("Sketcher::SketchObject", "Sketch003")
body.addObject(sketch4)
sketch4.AttachmentSupport = (doc.XY_Plane, [""])
sketch4.MapMode = "FlatFace"
sketch4.AttachmentOffset = App.Placement(Vector(0, 0, 32), App.Rotation())
sketch4.addGeometry([
    Part.LineSegment(Vector(16.5, 46.5, 0), Vector(16.5, 82.5, 0)),  # 0
    Part.LineSegment(Vector(16.5, 82.5, 0), Vector(-8.2, 82.5, 0)),  # 1
    Part.ArcOfCircle(Part.Circle(Vector(-8.2, 84.5, 0), Vector(0, 0, 1), 2), math.radians(-141), math.radians(-90)),  # 2
    Part.ArcOfCircle(Part.Circle(Vector(-13.5, 80.2, 0), Vector(0, 0, 1), 4.8), math.radians(39), math.radians(90)),  # 3
    Part.LineSegment(Vector(-13.5, 85, 0), Vector(-37.4, 85, 0)),  # 4
    Part.LineSegment(Vector(-37.4, 85, 0), Vector(-37.4, 81, 0)),  # 5
    Part.LineSegment(Vector(-37.4, 81, 0), Vector(-40.9, 81, 0)),  # 6
    Part.ArcOfCircle(Part.Circle(Vector(-40.9, 79, 0), Vector(0, 0, 1), 2), math.radians(90), math.radians(180)),  # 7
    Part.LineSegment(Vector(-42.9, 79, 0), Vector(-42.9, 67, 0)),  # 8
    Part.LineSegment(Vector(-42.9, 67, 0), Vector(-43.9, 67, 0)),  # 9
    Part.ArcOfCircle(Part.Circle(Vector(-43.9, 65, 0), Vector(0, 0, 1), 2), math.radians(90), math.radians(180)),  # 10
    Part.LineSegment(Vector(-45.9, 65, 0), Vector(-45.9, 48.2, 0)),  # 11
    Part.LineSegment(Vector(-45.9, 48.2, 0), Vector(-40.8, 43.9, 0)),  # 12
    Part.ArcOfCircle(Part.Circle(Vector(-32.5, 46.2, 0), Vector(0, 0, 1), 8.6), math.radians(-164), math.radians(-31)),  # 13
    Part.ArcOfCircle(Part.Circle(Vector(-22.5, 40.3, 0), Vector(0, 0, 1), 3), math.radians(90), math.radians(149)),  # 14
    Part.LineSegment(Vector(-22.5, 43.3, 0), Vector(13.5, 43.5, 0)),  # 15
    Part.ArcOfCircle(Part.Circle(Vector(13.5, 46.5, 0), Vector(0, 0, 1), 3), math.radians(-90), math.radians(0)),  # 16
], False)
sketch4.addConstraint([
    Sketcher.Constraint("Coincident", 0, 2, 1, 1),
    Sketcher.Constraint("Tangent", 1, 2, 2, 2),
    Sketcher.Constraint("Tangent", 2, 1, 3, 1),
    Sketcher.Constraint("Tangent", 3, 2, 4, 1),
    Sketcher.Constraint("Coincident", 4, 2, 5, 1),
    Sketcher.Constraint("Coincident", 5, 2, 6, 1),
    Sketcher.Constraint("Tangent", 6, 2, 7, 1),
    Sketcher.Constraint("Tangent", 7, 2, 8, 1),
    Sketcher.Constraint("Coincident", 8, 2, 9, 1),
    Sketcher.Constraint("Tangent", 9, 2, 10, 1),
    Sketcher.Constraint("Tangent", 10, 2, 11, 1),
    Sketcher.Constraint("Coincident", 11, 2, 12, 1),
    Sketcher.Constraint("Coincident", 12, 2, 13, 1),
    Sketcher.Constraint("Tangent", 13, 2, 14, 2),
    Sketcher.Constraint("Tangent", 14, 1, 15, 1),
    Sketcher.Constraint("Tangent", 15, 2, 16, 1),
    Sketcher.Constraint("Tangent", 16, 2, 0, 1),
    Sketcher.Constraint("Vertical", 0),
    Sketcher.Constraint("Horizontal", 1),
    Sketcher.Constraint("Horizontal", 4),
    Sketcher.Constraint("Vertical", 5),
    Sketcher.Constraint("Horizontal", 6),
    Sketcher.Constraint("Vertical", 8),
    Sketcher.Constraint("Horizontal", 9),
    Sketcher.Constraint("Vertical", 11),
    Sketcher.Constraint("Equal", 2, 7),
    Sketcher.Constraint("Equal", 7, 10),
    Sketcher.Constraint("Equal", 14, 16),
    Sketcher.Constraint("Radius", 2, 2.0),
    Sketcher.Constraint("Radius", 14, 3.0),
    Sketcher.Constraint("Radius", 3, 4.8),
    Sketcher.Constraint("DistanceX", 9, 2, 9, 1, 1.0),
    Sketcher.Constraint("DistanceY", 5, 2, 5, 1, 4.0),
    Sketcher.Constraint("DistanceY", 8, 2, 8, 1, 12.0),
    Sketcher.Constraint("DistanceY", -1, 1, 7, 3, 79.0),
    Sketcher.Constraint("DistanceY", 13, 3, 3, 3, 34.0),
    Sketcher.Constraint("DistanceX", 3, 3, 16, 3, 27.0),
    Sketcher.Constraint("DistanceY", -1, 1, 2, 3, 84.5),
    Sketcher.Constraint("DistanceX", 3, 3, -1, 1, 13.5),
    Sketcher.Constraint("Radius", 13, 8.641781),
    Sketcher.Constraint("DistanceX", 7, 3, -1, 1, 40.8999),
    Sketcher.Constraint("DistanceX", 14, 1, -1, 1, 22.5293),
    Sketcher.Constraint("DistanceY", 14, 3, 12, 2, 3.617899),
    Sketcher.Constraint("Distance", 12, 6.641368),
    Sketcher.Constraint("DistanceX", 4, 2, 4, 1, 23.876275),
    Sketcher.Constraint("DistanceY", 0, 1, 0, 2, 36.018307),
    Sketcher.Constraint("DistanceY", 11, 2, 11, 1, 16.809468),
])
sketch4.setExpression("Constraints[28]", "Params.sketch4_radius")
sketch4.setExpression("Constraints[29]", "Params.sketch4_radius2")
sketch4.setExpression("Constraints[30]", "Params.sketch4_radius3")
sketch4.setExpression("Constraints[31]", "Params.sketch4_width")
sketch4.setExpression("Constraints[32]", "Params.sketch4_height")
pad3 = doc.addObject("PartDesign::Pad", "Pad002")
body.addObject(pad3)
pad3.Profile = sketch4
pad3.setExpression("Length", "Params.pad3_length")
doc.recompute()

fillet = doc.addObject("PartDesign::Fillet", "Fillet")
body.addObject(fillet)
fillet.Base = (pad3, edges_at(pad3, [(-46.9, 71, 17)]))
fillet.setExpression("Radius", "Params.fillet_radius")

doc.recompute()
